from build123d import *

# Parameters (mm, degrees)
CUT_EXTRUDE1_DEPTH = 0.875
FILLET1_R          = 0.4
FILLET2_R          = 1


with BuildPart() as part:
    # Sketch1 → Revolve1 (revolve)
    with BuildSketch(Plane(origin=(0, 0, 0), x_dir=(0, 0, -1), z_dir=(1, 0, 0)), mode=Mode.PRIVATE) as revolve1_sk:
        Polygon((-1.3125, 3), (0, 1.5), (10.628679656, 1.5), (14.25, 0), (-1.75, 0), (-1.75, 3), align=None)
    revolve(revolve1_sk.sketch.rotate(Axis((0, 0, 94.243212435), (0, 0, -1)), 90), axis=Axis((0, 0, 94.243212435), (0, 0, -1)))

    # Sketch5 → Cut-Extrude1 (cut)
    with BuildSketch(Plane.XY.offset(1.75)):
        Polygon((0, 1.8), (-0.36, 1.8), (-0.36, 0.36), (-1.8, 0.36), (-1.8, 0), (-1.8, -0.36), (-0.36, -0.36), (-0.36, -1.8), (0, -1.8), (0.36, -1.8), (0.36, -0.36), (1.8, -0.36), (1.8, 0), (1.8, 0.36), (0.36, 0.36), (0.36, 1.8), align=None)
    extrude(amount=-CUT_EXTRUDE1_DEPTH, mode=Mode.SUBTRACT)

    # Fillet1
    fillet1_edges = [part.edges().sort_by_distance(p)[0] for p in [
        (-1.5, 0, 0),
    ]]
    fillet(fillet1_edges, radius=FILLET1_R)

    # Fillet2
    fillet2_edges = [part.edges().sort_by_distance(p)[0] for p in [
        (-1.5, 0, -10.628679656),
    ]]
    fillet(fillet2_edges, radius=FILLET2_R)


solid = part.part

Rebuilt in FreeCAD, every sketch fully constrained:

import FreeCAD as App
import Part
import Sketcher

V = App.Vector
Q = App.Units.Quantity


def edges_at(feature, points):
    """Names of the edges that pass closest to the given points."""
    edges = feature.Shape.Edges
    near = lambda p: min(range(len(edges)), key=lambda i: edges[i].distToShape(Part.Vertex(*p))[0])
    return sorted({f"Edge{near(p) + 1}" for p in points})


def add_polygon(sketch, points):
    """Adds a closed chain of lines whose ends are joined by coincident constraints."""
    first, n = sketch.GeometryCount, len(points)
    for a, b in zip(points, points[1:] + points[:1]):
        sketch.addGeometry(Part.LineSegment(App.Vector(*a, 0), App.Vector(*b, 0)), False)
    for i in range(n):
        sketch.addConstraint(Sketcher.Constraint("Coincident", first + i, 2, first + (i + 1) % n, 1))

doc = App.newDocument("Part")
body = doc.addObject("PartDesign::Body", "Body")

sketch1 = body.newObject("Sketcher::SketchObject", "Sketch")
sketch1.AttachmentSupport = (doc.getObject("YZ_Plane"), [""])
sketch1.MapMode = "FlatFace"
add_polygon(sketch1, [(1.5, 0), (3, 1.31), (3, 1.75), (0, 1.75), (0, -14.25), (1.5, -10.63)])
sketch1.addConstraint(Sketcher.Constraint("Vertical", 1))
sketch1.addConstraint(Sketcher.Constraint("Horizontal", 2))
sketch1.addConstraint(Sketcher.Constraint("Vertical", 3))
sketch1.addConstraint(Sketcher.Constraint("Vertical", 5))
sketch1.addConstraint(Sketcher.Constraint("PointOnObject", 2, 2, -2))
sketch1.addConstraint(Sketcher.Constraint("PointOnObject", 5, 2, -1))
sketch1.addConstraint(Sketcher.Constraint("DistanceX", 2, 2, 2, 1, Q("3 mm")))
sketch1.addConstraint(Sketcher.Constraint("DistanceY", 3, 2, 3, 1, Q("16 mm")))
sketch1.addConstraint(Sketcher.Constraint("Angle", 4, Q("67.5 deg")))
sketch1.addConstraint(Sketcher.Constraint("DistanceX", -1, 1, 4, 2, Q("1.5 mm")))
sketch1.addConstraint(Sketcher.Constraint("DistanceY", -1, 1, 1, 2, Q("1.75 mm")))
sketch1.addConstraint(Sketcher.Constraint("DistanceY", 1, 1, 1, 2, Q("0.4375 mm")))
revolution = body.newObject("PartDesign::Revolution", "Revolution")
revolution.Profile = sketch1
revolution.ReferenceAxis = (sketch1, ["V_Axis"])
revolution.Angle = 360

sketch2 = body.newObject("Sketcher::SketchObject", "Sketch001")
sketch2.AttachmentSupport = (doc.getObject("XY_Plane"), [""])
sketch2.MapMode = "FlatFace"
sketch2.AttachmentOffset = App.Placement(V(0, 0, 1.75), App.Rotation())
add_polygon(sketch2, [(-0.4, 1.8), (-0.4, 0.4), (-1.8, 0.4), (-1.8, -0.4), (-0.4, -0.4), (-0.4, -1.8), (0.4, -1.8), (0.4, -0.4), (1.8, -0.4), (1.8, 0.4), (0.4, 0.4), (0.4, 1.8)])
sketch2.addConstraint(Sketcher.Constraint("Vertical", 0))
sketch2.addConstraint(Sketcher.Constraint("Horizontal", 1))
sketch2.addConstraint(Sketcher.Constraint("Vertical", 2))
sketch2.addConstraint(Sketcher.Constraint("Horizontal", 3))
sketch2.addConstraint(Sketcher.Constraint("Vertical", 4))
sketch2.addConstraint(Sketcher.Constraint("Horizontal", 5))
sketch2.addConstraint(Sketcher.Constraint("Vertical", 6))
sketch2.addConstraint(Sketcher.Constraint("Horizontal", 7))
sketch2.addConstraint(Sketcher.Constraint("Vertical", 8))
sketch2.addConstraint(Sketcher.Constraint("Horizontal", 9))
sketch2.addConstraint(Sketcher.Constraint("Vertical", 10))
sketch2.addConstraint(Sketcher.Constraint("Horizontal", 11))
sketch2.addConstraint(Sketcher.Constraint("Symmetric", 0, 2, 6, 2, -1, 1))
sketch2.addConstraint(Sketcher.Constraint("Symmetric", 2, 2, 8, 2, -1, 1))
sketch2.addConstraint(Sketcher.Constraint("Symmetric", 4, 2, 10, 2, -1, 1))
sketch2.addConstraint(Sketcher.Constraint("Symmetric", 3, 2, 6, 2, -2))
sketch2.addConstraint(Sketcher.Constraint("Equal", 9, 0))
sketch2.addConstraint(Sketcher.Constraint("Equal", 11, 2))
sketch2.addConstraint(Sketcher.Constraint("DistanceX", 1, 2, 1, 1, Q("1.44 mm")))
sketch2.addConstraint(Sketcher.Constraint("DistanceX", 5, 1, 5, 2, Q("0.72 mm")))
pocket1 = body.newObject("PartDesign::Pocket", "Pocket")
pocket1.Profile = sketch2
pocket1.Length = 0.875
doc.recompute()

fillet = body.newObject("PartDesign::Fillet", "Fillet")
fillet.Base = (pocket1, edges_at(pocket1, [(-1.5, 0, 0)]))
fillet.Radius = 0.4
doc.recompute()

fillet2 = body.newObject("PartDesign::Fillet", "Fillet001")
fillet2.Base = (fillet, edges_at(fillet, [(-1.5, 0, -10.629)]))
fillet2.Radius = 1

doc.recompute()
